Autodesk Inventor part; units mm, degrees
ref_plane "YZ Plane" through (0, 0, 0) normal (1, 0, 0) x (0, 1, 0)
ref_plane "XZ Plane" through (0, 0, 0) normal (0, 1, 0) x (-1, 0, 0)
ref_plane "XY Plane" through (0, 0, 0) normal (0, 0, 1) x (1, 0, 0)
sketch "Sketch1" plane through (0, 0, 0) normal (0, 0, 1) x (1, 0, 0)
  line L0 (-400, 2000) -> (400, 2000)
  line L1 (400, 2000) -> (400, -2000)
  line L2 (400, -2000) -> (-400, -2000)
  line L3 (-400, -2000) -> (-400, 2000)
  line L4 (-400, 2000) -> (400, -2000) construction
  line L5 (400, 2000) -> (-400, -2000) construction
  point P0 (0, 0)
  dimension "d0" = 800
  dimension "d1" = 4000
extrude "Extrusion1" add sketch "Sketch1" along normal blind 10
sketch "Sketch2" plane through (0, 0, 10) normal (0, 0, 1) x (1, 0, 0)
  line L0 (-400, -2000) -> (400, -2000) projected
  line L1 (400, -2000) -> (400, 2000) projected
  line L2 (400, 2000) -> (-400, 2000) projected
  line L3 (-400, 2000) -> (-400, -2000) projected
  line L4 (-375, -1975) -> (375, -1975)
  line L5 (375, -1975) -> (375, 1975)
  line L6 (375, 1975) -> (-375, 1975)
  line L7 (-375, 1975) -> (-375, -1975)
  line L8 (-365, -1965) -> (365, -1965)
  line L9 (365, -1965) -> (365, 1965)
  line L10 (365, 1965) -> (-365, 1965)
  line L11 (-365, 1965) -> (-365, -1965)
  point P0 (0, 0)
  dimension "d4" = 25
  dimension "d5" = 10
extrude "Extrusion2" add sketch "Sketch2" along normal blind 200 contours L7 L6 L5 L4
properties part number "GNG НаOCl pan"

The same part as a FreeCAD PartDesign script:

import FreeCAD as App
import Part
import Sketcher

V = App.Vector
Q = App.Units.Quantity

doc = App.newDocument("Part")
params = doc.addObject("Spreadsheet::Sheet", "Params")
for row, (alias, value) in enumerate([
    ("sketch1_width", "800 mm"),
    ("sketch1_height", "4000 mm"),
    ("pad1_length", "10 mm"),
    ("sketch2_width", "750 mm"),
    ("sketch2_height", "3950 mm"),
    ("pad2_length", "200 mm"),
], start=1):
    params.set(f"A{row}", alias)
    params.set(f"B{row}", "=" + value)
    params.setAlias(f"B{row}", alias)

body = doc.addObject("PartDesign::Body", "Body")

# Sketch on XY plane
sketch1 = body.newObject("Sketcher::SketchObject", "Sketch")
sketch1.AttachmentSupport = (doc.getObject("XY_Plane"), [""])
sketch1.MapMode = "FlatFace"
sketch1.addGeometry(Part.LineSegment(V(400, 2000, 0), V(-400, 2000, 0)), False)
sketch1.addGeometry(Part.LineSegment(V(-400, 2000, 0), V(-400, -2000, 0)), False)
sketch1.addGeometry(Part.LineSegment(V(-400, -2000, 0), V(400, -2000, 0)), False)
sketch1.addGeometry(Part.LineSegment(V(400, -2000, 0), V(400, 2000, 0)), False)
sketch1.addConstraint(Sketcher.Constraint("Coincident", 0, 2, 1, 1))
sketch1.addConstraint(Sketcher.Constraint("Coincident", 1, 2, 2, 1))
sketch1.addConstraint(Sketcher.Constraint("Coincident", 2, 2, 3, 1))
sketch1.addConstraint(Sketcher.Constraint("Coincident", 3, 2, 0, 1))
sketch1.addConstraint(Sketcher.Constraint("Horizontal", 0))
sketch1.addConstraint(Sketcher.Constraint("Vertical", 1))
sketch1.addConstraint(Sketcher.Constraint("Horizontal", 2))
sketch1.addConstraint(Sketcher.Constraint("Vertical", 3))
sketch1.addConstraint(Sketcher.Constraint("Symmetric", 0, 2, 2, 2, -1, 1))
sketch1.addConstraint(Sketcher.Constraint("DistanceX", 0, 2, 0, 1, Q("800 mm")))
sketch1.addConstraint(Sketcher.Constraint("DistanceY", 1, 2, 1, 1, Q("4000 mm")))
sketch1.setExpression("Constraints[9]", "Params.sketch1_width")
sketch1.setExpression("Constraints[10]", "Params.sketch1_height")
pad1 = body.newObject("PartDesign::Pad", "Pad")
pad1.Profile = sketch1
pad1.setExpression("Length", "Params.pad1_length")

# Sketch on XY plane
sketch2 = body.newObject("Sketcher::SketchObject", "Sketch001")
sketch2.AttachmentSupport = (doc.getObject("XY_Plane"), [""])
sketch2.MapMode = "FlatFace"
sketch2.AttachmentOffset = App.Placement(V(0, 0, 10), App.Rotation())
sketch2.addGeometry(Part.LineSegment(V(-375, 1975, 0), V(-375, -1975, 0)), False)
sketch2.addGeometry(Part.LineSegment(V(-375, -1975, 0), V(375, -1975, 0)), False)
sketch2.addGeometry(Part.LineSegment(V(375, -1975, 0), V(375, 1975, 0)), False)
sketch2.addGeometry(Part.LineSegment(V(375, 1975, 0), V(-375, 1975, 0)), False)
sketch2.addGeometry(Part.LineSegment(V(365, -1965, 0), V(-365, -1965, 0)), False)
sketch2.addGeometry(Part.LineSegment(V(-365, -1965, 0), V(-365, 1965, 0)), False)
sketch2.addGeometry(Part.LineSegment(V(-365, 1965, 0), V(365, 1965, 0)), False)
sketch2.addGeometry(Part.LineSegment(V(365, 1965, 0), V(365, -1965, 0)), False)
sketch2.addConstraint(Sketcher.Constraint("Coincident", 0, 2, 1, 1))
sketch2.addConstraint(Sketcher.Constraint("Coincident", 1, 2, 2, 1))
sketch2.addConstraint(Sketcher.Constraint("Coincident", 2, 2, 3, 1))
sketch2.addConstraint(Sketcher.Constraint("Coincident", 3, 2, 0, 1))
sketch2.addConstraint(Sketcher.Constraint("Coincident", 4, 2, 5, 1))
sketch2.addConstraint(Sketcher.Constraint("Coincident", 5, 2, 6, 1))
sketch2.addConstraint(Sketcher.Constraint("Coincident", 6, 2, 7, 1))
sketch2.addConstraint(Sketcher.Constraint("Coincident", 7, 2, 4, 1))
sketch2.addConstraint(Sketcher.Constraint("Vertical", 0))
sketch2.addConstraint(Sketcher.Constraint("Horizontal", 1))
sketch2.addConstraint(Sketcher.Constraint("Vertical", 2))
sketch2.addConstraint(Sketcher.Constraint("Horizontal", 3))
sketch2.addConstraint(Sketcher.Constraint("Horizontal", 4))
sketch2.addConstraint(Sketcher.Constraint("Vertical", 5))
sketch2.addConstraint(Sketcher.Constraint("Horizontal", 6))
sketch2.addConstraint(Sketcher.Constraint("Vertical", 7))
sketch2.addConstraint(Sketcher.Constraint("Symmetric", 0, 2, 2, 2, -1, 1))
sketch2.addConstraint(Sketcher.Constraint("Symmetric", 4, 2, 6, 2, -1, 1))
sketch2.addConstraint(Sketcher.Constraint("DistanceX", 0, 2, 4, 2, Q("10 mm")))
sketch2.addConstraint(Sketcher.Constraint("DistanceY", 0, 2, 4, 2, Q("10 mm")))
sketch2.addConstraint(Sketcher.Constraint("DistanceX", 1, 1, 1, 2, Q("750 mm")))
sketch2.addConstraint(Sketcher.Constraint("DistanceY", 0, 2, 0, 1, Q("3950 mm")))
sketch2.setExpression("Constraints[20]", "Params.sketch2_width")
sketch2.setExpression("Constraints[21]", "Params.sketch2_height")
pad2 = body.newObject("PartDesign::Pad", "Pad001")
pad2.Profile = sketch2
pad2.setExpression("Length", "Params.pad2_length")

doc.recompute()
